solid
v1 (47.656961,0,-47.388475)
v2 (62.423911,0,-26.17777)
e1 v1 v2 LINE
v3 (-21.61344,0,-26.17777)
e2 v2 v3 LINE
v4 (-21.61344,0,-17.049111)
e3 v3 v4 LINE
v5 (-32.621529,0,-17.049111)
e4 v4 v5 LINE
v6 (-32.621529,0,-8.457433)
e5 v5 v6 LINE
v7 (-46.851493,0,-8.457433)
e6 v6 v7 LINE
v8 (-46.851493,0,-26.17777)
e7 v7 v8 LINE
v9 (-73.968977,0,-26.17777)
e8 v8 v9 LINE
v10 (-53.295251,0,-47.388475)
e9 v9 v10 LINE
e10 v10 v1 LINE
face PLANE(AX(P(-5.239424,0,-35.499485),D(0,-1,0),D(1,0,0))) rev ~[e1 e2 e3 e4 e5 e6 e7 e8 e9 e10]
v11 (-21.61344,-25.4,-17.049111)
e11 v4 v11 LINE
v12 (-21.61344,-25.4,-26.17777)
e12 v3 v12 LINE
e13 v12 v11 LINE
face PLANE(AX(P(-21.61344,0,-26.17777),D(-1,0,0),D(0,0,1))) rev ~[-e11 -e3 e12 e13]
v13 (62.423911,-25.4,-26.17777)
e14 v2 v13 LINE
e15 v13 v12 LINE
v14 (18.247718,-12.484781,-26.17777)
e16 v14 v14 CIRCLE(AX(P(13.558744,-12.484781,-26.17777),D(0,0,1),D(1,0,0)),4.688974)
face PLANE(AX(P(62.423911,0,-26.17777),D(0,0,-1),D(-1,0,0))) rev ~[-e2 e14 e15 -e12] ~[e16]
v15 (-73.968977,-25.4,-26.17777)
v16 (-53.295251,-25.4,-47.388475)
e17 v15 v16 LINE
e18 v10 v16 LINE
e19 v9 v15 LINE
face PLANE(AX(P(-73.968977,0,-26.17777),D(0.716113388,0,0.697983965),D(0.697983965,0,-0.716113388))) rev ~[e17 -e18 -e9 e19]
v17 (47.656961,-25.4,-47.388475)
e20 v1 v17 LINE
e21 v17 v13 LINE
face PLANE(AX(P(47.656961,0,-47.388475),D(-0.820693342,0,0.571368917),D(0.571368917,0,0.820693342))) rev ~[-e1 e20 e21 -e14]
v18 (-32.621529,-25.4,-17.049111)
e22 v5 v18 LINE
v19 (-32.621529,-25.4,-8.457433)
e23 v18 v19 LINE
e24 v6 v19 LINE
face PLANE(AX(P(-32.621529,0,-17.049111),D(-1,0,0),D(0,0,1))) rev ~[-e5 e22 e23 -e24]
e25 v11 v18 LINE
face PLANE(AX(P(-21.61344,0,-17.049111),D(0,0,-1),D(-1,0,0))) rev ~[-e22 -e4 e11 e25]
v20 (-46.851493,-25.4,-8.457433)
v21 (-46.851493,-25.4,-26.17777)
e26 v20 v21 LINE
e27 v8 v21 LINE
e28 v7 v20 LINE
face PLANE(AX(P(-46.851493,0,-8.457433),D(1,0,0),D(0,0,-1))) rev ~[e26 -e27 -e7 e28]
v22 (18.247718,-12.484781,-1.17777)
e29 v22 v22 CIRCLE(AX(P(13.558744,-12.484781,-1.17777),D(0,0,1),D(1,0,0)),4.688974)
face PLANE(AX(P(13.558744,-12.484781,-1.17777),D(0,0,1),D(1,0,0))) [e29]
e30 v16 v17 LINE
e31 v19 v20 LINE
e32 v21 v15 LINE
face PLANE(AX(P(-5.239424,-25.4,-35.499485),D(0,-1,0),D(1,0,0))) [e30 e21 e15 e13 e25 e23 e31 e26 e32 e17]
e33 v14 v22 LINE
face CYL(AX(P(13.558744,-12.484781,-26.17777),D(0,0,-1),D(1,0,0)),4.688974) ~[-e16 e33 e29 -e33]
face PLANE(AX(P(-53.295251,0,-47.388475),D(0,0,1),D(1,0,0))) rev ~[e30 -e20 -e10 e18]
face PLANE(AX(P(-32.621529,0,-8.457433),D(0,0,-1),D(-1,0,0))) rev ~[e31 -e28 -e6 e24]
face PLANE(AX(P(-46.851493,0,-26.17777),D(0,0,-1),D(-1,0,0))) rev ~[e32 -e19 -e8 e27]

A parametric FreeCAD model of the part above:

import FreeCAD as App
import Part
import Sketcher

V = App.Vector
Q = App.Units.Quantity

doc = App.newDocument("Part")
body = doc.addObject("PartDesign::Body", "Body")

# Sketch on XZ plane
sketch1 = doc.addObject("Sketcher::SketchObject", "Sketch")
body.addObject(sketch1)
sketch1.AttachmentSupport = (doc.XZ_Plane, [""])
sketch1.MapMode = "FlatFace"
sketch1.addGeometry([
    Part.LineSegment(V(-74, -26, 0), V(-53, -47, 0)),  # 0
    Part.LineSegment(V(-53, -47, 0), V(48, -47, 0)),  # 1
    Part.LineSegment(V(48, -47, 0), V(62, -26, 0)),  # 2
    Part.LineSegment(V(62, -26, 0), V(-22, -26, 0)),  # 3
    Part.LineSegment(V(-22, -26, 0), V(-22, -17, 0)),  # 4
    Part.LineSegment(V(-22, -17, 0), V(-33, -17, 0)),  # 5
    Part.LineSegment(V(-33, -17, 0), V(-33, -8, 0)),  # 6
    Part.LineSegment(V(-33, -8, 0), V(-47, -8, 0)),  # 7
    Part.LineSegment(V(-47, -8, 0), V(-47, -26, 0)),  # 8
    Part.LineSegment(V(-47, -26, 0), V(-74, -26, 0)),  # 9
], False)
sketch1.addConstraint([
    Sketcher.Constraint("Coincident", 0, 2, 1, 1),
    Sketcher.Constraint("Coincident", 1, 2, 2, 1),
    Sketcher.Constraint("Coincident", 2, 2, 3, 1),
    Sketcher.Constraint("Coincident", 3, 2, 4, 1),
    Sketcher.Constraint("Coincident", 4, 2, 5, 1),
    Sketcher.Constraint("Coincident", 5, 2, 6, 1),
    Sketcher.Constraint("Coincident", 6, 2, 7, 1),
    Sketcher.Constraint("Coincident", 7, 2, 8, 1),
    Sketcher.Constraint("Coincident", 8, 2, 9, 1),
    Sketcher.Constraint("Coincident", 9, 2, 0, 1),
    Sketcher.Constraint("Horizontal", 1),
    Sketcher.Constraint("Horizontal", 3),
    Sketcher.Constraint("Vertical", 4),
    Sketcher.Constraint("Horizontal", 5),
    Sketcher.Constraint("Vertical", 6),
    Sketcher.Constraint("Horizontal", 7),
    Sketcher.Constraint("Vertical", 8),
    Sketcher.Constraint("Horizontal", 9),
    Sketcher.Constraint("Horizontal", 3, 2, 8, 2),
    Sketcher.Constraint("Distance", 0, Q("29.619199 mm")),
    Sketcher.Constraint("DistanceX", 3, 2, 3, 1, Q("84.037351 mm")),
    Sketcher.Constraint("DistanceX", 5, 2, 5, 1, Q("11.008089 mm")),
    Sketcher.Constraint("DistanceY", 4, 1, 4, 2, Q("9.128659 mm")),
    Sketcher.Constraint("DistanceX", 3, 2, 1, 2, Q("69.270401 mm")),
    Sketcher.Constraint("Distance", 2, Q("25.844861 mm")),
    Sketcher.Constraint("DistanceX", 1, 1, 1, 2, Q("100.952212 mm")),
    Sketcher.Constraint("DistanceX", 7, 2, 7, 1, Q("14.229964 mm")),
    Sketcher.Constraint("DistanceY", 6, 1, 6, 2, Q("8.591678 mm")),
    Sketcher.Constraint("DistanceX", 0, 2, -1, 1, Q("53.295251 mm")),
    Sketcher.Constraint("DistanceY", 2, 2, -1, 1, Q("26.17777 mm")),
])
pad1 = doc.addObject("PartDesign::Pad", "Pad")
body.addObject(pad1)
pad1.Profile = sketch1
pad1.Length = 25.4

# Sketch on XY plane
sketch2 = doc.addObject("Sketcher::SketchObject", "Sketch001")
body.addObject(sketch2)
sketch2.AttachmentSupport = (doc.XY_Plane, [""])
sketch2.MapMode = "FlatFace"
sketch2.AttachmentOffset = App.Placement(V(0, 0, -26.17777), App.Rotation())
sketch2.addGeometry(Part.Circle(V(13.6, -12.5, 0), V(0, 0, 1), 4.7), False)
sketch2.addConstraint([
    Sketcher.Constraint("Diameter", 0, Q("9.377948 mm")),
    Sketcher.Constraint("DistanceY", 0, 3, -1, 1, Q("12.484781 mm")),
    Sketcher.Constraint("DistanceX", -1, 1, 0, 3, Q("13.558744 mm")),
])
pad2 = doc.addObject("PartDesign::Pad", "Pad001")
body.addObject(pad2)
pad2.Profile = sketch2
pad2.Length = 25

doc.recompute()
